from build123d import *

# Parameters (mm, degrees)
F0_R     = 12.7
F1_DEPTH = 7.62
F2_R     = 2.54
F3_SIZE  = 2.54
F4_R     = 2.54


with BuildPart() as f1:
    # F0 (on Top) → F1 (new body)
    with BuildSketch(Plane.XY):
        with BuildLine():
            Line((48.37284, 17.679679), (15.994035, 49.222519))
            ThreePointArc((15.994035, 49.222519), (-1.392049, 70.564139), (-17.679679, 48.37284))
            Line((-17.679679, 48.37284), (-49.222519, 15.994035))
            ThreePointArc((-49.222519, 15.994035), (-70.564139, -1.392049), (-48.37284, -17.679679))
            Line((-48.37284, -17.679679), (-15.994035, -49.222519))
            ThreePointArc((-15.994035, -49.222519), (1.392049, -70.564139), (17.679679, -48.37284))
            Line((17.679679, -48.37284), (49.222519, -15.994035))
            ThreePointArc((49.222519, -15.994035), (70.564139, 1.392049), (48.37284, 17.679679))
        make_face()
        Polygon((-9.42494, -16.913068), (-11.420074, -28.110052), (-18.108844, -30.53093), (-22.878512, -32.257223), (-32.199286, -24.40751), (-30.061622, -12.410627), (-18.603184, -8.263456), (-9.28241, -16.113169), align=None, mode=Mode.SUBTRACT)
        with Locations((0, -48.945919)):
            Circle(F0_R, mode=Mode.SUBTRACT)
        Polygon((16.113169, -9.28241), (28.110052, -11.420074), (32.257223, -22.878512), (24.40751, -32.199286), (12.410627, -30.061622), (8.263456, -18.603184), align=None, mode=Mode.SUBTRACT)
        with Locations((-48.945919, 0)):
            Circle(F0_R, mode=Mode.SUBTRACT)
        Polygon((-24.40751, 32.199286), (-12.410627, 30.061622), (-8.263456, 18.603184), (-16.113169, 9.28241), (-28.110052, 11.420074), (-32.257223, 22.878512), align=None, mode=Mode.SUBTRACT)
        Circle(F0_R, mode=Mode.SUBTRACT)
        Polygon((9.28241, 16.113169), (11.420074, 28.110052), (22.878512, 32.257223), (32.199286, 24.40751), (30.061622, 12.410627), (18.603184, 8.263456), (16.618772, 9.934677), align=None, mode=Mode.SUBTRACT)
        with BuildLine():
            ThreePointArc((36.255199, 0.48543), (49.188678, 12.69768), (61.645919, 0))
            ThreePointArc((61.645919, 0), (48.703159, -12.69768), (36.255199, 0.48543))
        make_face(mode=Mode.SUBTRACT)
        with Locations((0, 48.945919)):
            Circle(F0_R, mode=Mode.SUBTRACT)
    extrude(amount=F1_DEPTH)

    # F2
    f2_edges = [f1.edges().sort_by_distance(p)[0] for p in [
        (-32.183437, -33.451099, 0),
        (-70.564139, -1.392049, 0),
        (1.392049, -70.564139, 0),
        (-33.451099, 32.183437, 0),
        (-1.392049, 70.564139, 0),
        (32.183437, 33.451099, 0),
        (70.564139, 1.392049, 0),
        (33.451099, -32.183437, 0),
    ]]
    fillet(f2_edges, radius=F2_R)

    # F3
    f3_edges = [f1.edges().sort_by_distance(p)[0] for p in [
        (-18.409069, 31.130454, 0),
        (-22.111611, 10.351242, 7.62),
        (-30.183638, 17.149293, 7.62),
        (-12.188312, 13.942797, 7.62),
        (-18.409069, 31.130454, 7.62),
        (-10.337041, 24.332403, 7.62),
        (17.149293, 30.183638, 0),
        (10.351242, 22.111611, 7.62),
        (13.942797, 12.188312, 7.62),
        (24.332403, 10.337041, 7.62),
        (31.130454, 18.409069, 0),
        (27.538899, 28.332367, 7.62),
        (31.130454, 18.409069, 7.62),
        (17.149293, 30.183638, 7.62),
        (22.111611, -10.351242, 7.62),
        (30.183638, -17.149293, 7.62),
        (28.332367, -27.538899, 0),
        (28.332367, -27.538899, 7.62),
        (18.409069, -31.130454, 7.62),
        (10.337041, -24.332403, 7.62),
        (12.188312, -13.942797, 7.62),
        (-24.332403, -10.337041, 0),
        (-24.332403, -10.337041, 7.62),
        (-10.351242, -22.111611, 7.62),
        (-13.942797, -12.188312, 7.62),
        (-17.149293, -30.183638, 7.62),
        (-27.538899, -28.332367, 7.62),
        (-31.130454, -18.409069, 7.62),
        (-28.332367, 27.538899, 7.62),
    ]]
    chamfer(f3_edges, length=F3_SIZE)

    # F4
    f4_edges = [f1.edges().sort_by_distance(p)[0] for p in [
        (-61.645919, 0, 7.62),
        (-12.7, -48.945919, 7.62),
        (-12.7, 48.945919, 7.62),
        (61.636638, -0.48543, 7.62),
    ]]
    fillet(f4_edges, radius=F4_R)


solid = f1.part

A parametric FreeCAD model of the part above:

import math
import FreeCAD as App
import Part
import Sketcher

V = App.Vector
Q = App.Units.Quantity


def edges_at(feature, points):
    """Names of the edges that pass closest to the given points."""
    edges = feature.Shape.Edges
    near = lambda p: min(range(len(edges)), key=lambda i: edges[i].distToShape(Part.Vertex(*p))[0])
    return sorted({f"Edge{near(p) + 1}" for p in points})


def add_polygon(sketch, points):
    """Adds a closed chain of lines whose ends are joined by coincident constraints."""
    first, n = sketch.GeometryCount, len(points)
    for a, b in zip(points, points[1:] + points[:1]):
        sketch.addGeometry(Part.LineSegment(App.Vector(*a, 0), App.Vector(*b, 0)), False)
    for i in range(n):
        sketch.addConstraint(Sketcher.Constraint("Coincident", first + i, 2, first + (i + 1) % n, 1))

doc = App.newDocument("Part")
body = doc.addObject("PartDesign::Body", "Body")

sketch1 = body.newObject("Sketcher::SketchObject", "Sketch")
sketch1.AttachmentSupport = (doc.getObject("XY_Plane"), [""])
sketch1.MapMode = "FlatFace"
sketch1.addGeometry(Part.LineSegment(V(48.4, 17.7, 0), V(16, 49.2, 0)), False)
sketch1.addGeometry(Part.ArcOfCircle(Part.Circle(V(-1, 53.2, 0), V(0, 0, 1), 17.4), math.radians(-13), math.radians(196)), False)
sketch1.addGeometry(Part.LineSegment(V(-17.7, 48.4, 0), V(-49.2, 16, 0)), False)
sketch1.addGeometry(Part.ArcOfCircle(Part.Circle(V(-53.2, -1, 0), V(0, 0, 1), 17.4), math.radians(77), math.radians(286)), False)
sketch1.addGeometry(Part.LineSegment(V(-48.4, -17.7, 0), V(-16, -49.2, 0)), False)
sketch1.addGeometry(Part.ArcOfCircle(Part.Circle(V(1, -53.2, 0), V(0, 0, 1), 17.4), math.radians(167), math.radians(376)), False)
sketch1.addGeometry(Part.LineSegment(V(17.7, -48.4, 0), V(49.2, -16, 0)), False)
sketch1.addGeometry(Part.ArcOfCircle(Part.Circle(V(53.2, 1, 0), V(0, 0, 1), 17.4), math.radians(-103), math.radians(106)), False)
add_polygon(sketch1, [(-9.3, -16.1), (-9.4, -16.9), (-11.4, -28.1), (-18.1, -30.5), (-22.9, -32.3), (-32.2, -24.4), (-30.1, -12.4), (-18.6, -8.3)])
sketch1.addGeometry(Part.Circle(V(0, -48.9, 0), V(0, 0, 1), 12.7), False)
add_polygon(sketch1, [(8.3, -18.6), (16.1, -9.3), (28.1, -11.4), (32.3, -22.9), (24.4, -32.2), (12.4, -30.1)])
sketch1.addGeometry(Part.ArcOfCircle(Part.Circle(V(48.9, 0, 0), V(0, 0, 1), 12.7), math.radians(178), math.radians(360)), False)
sketch1.addGeometry(Part.ArcOfCircle(Part.Circle(V(48.9, 0, 0), V(0, 0, 1), 12.7), math.radians(0), math.radians(178)), False)
sketch1.addGeometry(Part.Circle(V(-48.9, 0, 0), V(0, 0, 1), 12.7), False)
add_polygon(sketch1, [(-32.3, 22.9), (-24.4, 32.2), (-12.4, 30.1), (-8.3, 18.6), (-16.1, 9.3), (-28.1, 11.4)])
sketch1.addGeometry(Part.Circle(V(0, 0, 0), V(0, 0, 1), 12.7), False)
add_polygon(sketch1, [(16.6, 9.9), (9.3, 16.1), (11.4, 28.1), (22.9, 32.3), (32.2, 24.4), (30.1, 12.4), (18.6, 8.3)])
sketch1.addGeometry(Part.Circle(V(0, 48.9, 0), V(0, 0, 1), 12.7), False)
sketch1.addConstraint([
    Sketcher.Constraint("Coincident", 0, 2, 1, 1),
    Sketcher.Constraint("Coincident", 1, 2, 2, 1),
    Sketcher.Constraint("Coincident", 2, 2, 3, 1),
    Sketcher.Constraint("Coincident", 3, 2, 4, 1),
    Sketcher.Constraint("Coincident", 4, 2, 5, 1),
    Sketcher.Constraint("Coincident", 5, 2, 6, 1),
    Sketcher.Constraint("Coincident", 6, 2, 7, 1),
    Sketcher.Constraint("Coincident", 7, 2, 0, 1),
    Sketcher.Constraint("Tangent", 23, 1, 24, 2),
    Sketcher.Constraint("Coincident", 24, 1, 23, 2),
    Sketcher.Constraint("Coincident", 32, 3, -1, 1),
    Sketcher.Constraint("Equal", 1, 3),
    Sketcher.Constraint("Equal", 3, 5),
    Sketcher.Constraint("Equal", 5, 7),
    Sketcher.Constraint("Equal", 16, 23),
    Sketcher.Constraint("Equal", 24, 25),
    Sketcher.Constraint("Equal", 25, 32),
    Sketcher.Constraint("Equal", 32, 40),
    Sketcher.Constraint("Symmetric", 1, 3, 5, 3, -1, 1),
    Sketcher.Constraint("Symmetric", 3, 3, 7, 3, -1, 1),
    Sketcher.Constraint("Symmetric", 23, 3, 25, 3, -1, 1),
    Sketcher.Constraint("Symmetric", 16, 3, 40, 3, -1, 1),
    Sketcher.Constraint("Symmetric", 20, 2, 26, 2, -1, 1),
    Sketcher.Constraint("Symmetric", 21, 2, 27, 2, -1, 1),
    Sketcher.Constraint("Symmetric", 22, 2, 28, 2, -1, 1),
    Sketcher.Constraint("Symmetric", 17, 2, 29, 2, -1, 1),
    Sketcher.Constraint("Symmetric", 18, 2, 30, 2, -1, 1),
    Sketcher.Constraint("Symmetric", 19, 2, 31, 2, -1, 1),
    Sketcher.Constraint("Symmetric", 15, 2, 33, 2, -1, 1),
    Sketcher.Constraint("Symmetric", 9, 2, 34, 2, -1, 1),
    Sketcher.Constraint("Symmetric", 11, 2, 35, 2, -1, 1),
    Sketcher.Constraint("Symmetric", 12, 2, 36, 2, -1, 1),
    Sketcher.Constraint("Symmetric", 13, 2, 37, 2, -1, 1),
    Sketcher.Constraint("Symmetric", 14, 2, 38, 2, -1, 1),
    Sketcher.Constraint("PointOnObject", 16, 3, -2),
    Sketcher.Constraint("PointOnObject", 23, 3, -1),
    Sketcher.Constraint("PointOnObject", 24, 1, -1),
    Sketcher.Constraint("Perpendicular", 0, 2),
    Sketcher.Constraint("Perpendicular", 2, 4),
    Sketcher.Constraint("Perpendicular", 4, 6),
    Sketcher.Constraint("Parallel", 8, 9),
    Sketcher.Constraint("Parallel", 10, 11),
    Sketcher.Constraint("Parallel", 9, 13),
    Sketcher.Constraint("Parallel", 11, 14),
    Sketcher.Constraint("Parallel", 12, 15),
    Sketcher.Constraint("Perpendicular", 15, 17),
    Sketcher.Constraint("Perpendicular", 13, 18),
    Sketcher.Constraint("Perpendicular", 14, 19),
    Sketcher.Constraint("Parallel", 17, 20),
    Sketcher.Constraint("Parallel", 18, 21),
    Sketcher.Constraint("Parallel", 19, 22),
    Sketcher.Constraint("Perpendicular", 29, 33),
    Sketcher.Constraint("Equal", 0, 2),
    Sketcher.Constraint("Equal", 2, 4),
    Sketcher.Constraint("Equal", 4, 6),
    Sketcher.Constraint("Equal", 12, 13),
    Sketcher.Constraint("Equal", 13, 14),
    Sketcher.Constraint("Equal", 14, 15),
    Sketcher.Constraint("Equal", 15, 17),
    Sketcher.Constraint("Equal", 17, 18),
    Sketcher.Constraint("Equal", 18, 19),
    Sketcher.Constraint("Equal", 19, 20),
    Sketcher.Constraint("Diameter", 16, Q("1 in")),
    Sketcher.Constraint("Radius", 1, 17.400615),
    Sketcher.Constraint("DistanceX", 23, 1, 7, 3, Q("0.6659001 in")),
    Sketcher.Constraint("Distance", 8, 0.812498),
    Sketcher.Constraint("DistanceX", -1, 1, 23, 1, 36.255199),
    Sketcher.Constraint("DistanceY", 40, 3, 0, 2, 0.2766),
    Sketcher.Constraint("DistanceX", 2, 2, 25, 3, 0.2766),
    Sketcher.Constraint("DistanceX", 3, 2, 8, 2, 38.9479),
    Sketcher.Constraint("DistanceY", 8, 2, 15, 2, 0.799899),
    Sketcher.Constraint("DistanceX", 27, 2, 34, 2, 23.830701),
    Sketcher.Constraint("DistanceX", 34, 2, 39, 2, 5.198698),
    Sketcher.Constraint("Distance", 10, 7.113388),
    Sketcher.Constraint("DistanceY", -1, 1, 1, 3, 53.169061),
    Sketcher.Constraint("DistanceY", 16, 3, -1, 1, 48.945919),
    Sketcher.Constraint("DistanceX", -1, 1, 23, 3, 48.945919),
    Sketcher.Constraint("DistanceX", 1, 2, -1, 1, 17.679679),
    Sketcher.Constraint("DistanceY", -1, 1, 1, 2, 48.37284),
    Sketcher.Constraint("DistanceY", 9, 2, -1, 1, 28.110052),
    Sketcher.Constraint("DistanceY", 10, 2, -1, 1, 30.53093),
    Sketcher.Constraint("DistanceY", 12, 2, -1, 1, 24.40751),
    Sketcher.Constraint("DistanceX", 13, 2, -1, 1, 30.061622),
    Sketcher.Constraint("DistanceY", 17, 2, -1, 1, 9.28241),
])
pad1 = body.newObject("PartDesign::Pad", "Pad")
pad1.Profile = sketch1
pad1.Length = Q("0.3 in")
doc.recompute()

fillet = body.newObject("PartDesign::Fillet", "Fillet")
fillet.Base = (pad1, edges_at(pad1, [
    (-32.183, -33.451, 0),
    (-70.564, -1.392, 0),
    (1.392, -70.564, 0),
    (-33.451, 32.183, 0),
    (-1.392, 70.564, 0),
    (32.183, 33.451, 0),
    (70.564, 1.392, 0),
    (33.451, -32.183, 0),
]))
fillet.Radius = Q("0.1 in")
doc.recompute()

chamfer = body.newObject("PartDesign::Chamfer", "Chamfer")
chamfer.Base = (fillet, edges_at(fillet, [
    (-18.409, 31.13, 0),
    (-22.112, 10.351, 7.62),
    (-30.184, 17.149, 7.62),
    (-12.188, 13.943, 7.62),
    (-18.409, 31.13, 7.62),
    (-10.337, 24.332, 7.62),
    (17.149, 30.184, 0),
    (10.351, 22.112, 7.62),
    (12.951, 13.024, 7.62),
    (24.332, 10.337, 7.62),
    (31.13, 18.409, 0),
    (27.539, 28.332, 7.62),
    (31.13, 18.409, 7.62),
    (17.149, 30.184, 7.62),
    (22.112, -10.351, 7.62),
    (30.184, -17.149, 7.62),
    (28.332, -27.539, 0),
    (28.332, -27.539, 7.62),
    (18.409, -31.13, 7.62),
    (10.337, -24.332, 7.62),
    (12.188, -13.943, 7.62),
    (-24.332, -10.337, 0),
    (-24.332, -10.337, 7.62),
    (-10.423, -22.512, 7.62),
    (-13.943, -12.188, 7.62),
    (-14.764, -29.32, 7.62),
    (-27.539, -28.332, 7.62),
    (-31.13, -18.409, 7.62),
    (-28.332, 27.539, 7.62),
]))
chamfer.Size = Q("0.1 in")
doc.recompute()

fillet2 = body.newObject("PartDesign::Fillet", "Fillet001")
fillet2.Base = (chamfer, edges_at(chamfer, [
    (-61.646, 0, 7.62),
    (-12.7, -48.946, 7.62),
    (-12.7, 48.946, 7.62),
    (48.703, -12.698, 7.62),
]))
fillet2.Radius = Q("0.1 in")

doc.recompute()
